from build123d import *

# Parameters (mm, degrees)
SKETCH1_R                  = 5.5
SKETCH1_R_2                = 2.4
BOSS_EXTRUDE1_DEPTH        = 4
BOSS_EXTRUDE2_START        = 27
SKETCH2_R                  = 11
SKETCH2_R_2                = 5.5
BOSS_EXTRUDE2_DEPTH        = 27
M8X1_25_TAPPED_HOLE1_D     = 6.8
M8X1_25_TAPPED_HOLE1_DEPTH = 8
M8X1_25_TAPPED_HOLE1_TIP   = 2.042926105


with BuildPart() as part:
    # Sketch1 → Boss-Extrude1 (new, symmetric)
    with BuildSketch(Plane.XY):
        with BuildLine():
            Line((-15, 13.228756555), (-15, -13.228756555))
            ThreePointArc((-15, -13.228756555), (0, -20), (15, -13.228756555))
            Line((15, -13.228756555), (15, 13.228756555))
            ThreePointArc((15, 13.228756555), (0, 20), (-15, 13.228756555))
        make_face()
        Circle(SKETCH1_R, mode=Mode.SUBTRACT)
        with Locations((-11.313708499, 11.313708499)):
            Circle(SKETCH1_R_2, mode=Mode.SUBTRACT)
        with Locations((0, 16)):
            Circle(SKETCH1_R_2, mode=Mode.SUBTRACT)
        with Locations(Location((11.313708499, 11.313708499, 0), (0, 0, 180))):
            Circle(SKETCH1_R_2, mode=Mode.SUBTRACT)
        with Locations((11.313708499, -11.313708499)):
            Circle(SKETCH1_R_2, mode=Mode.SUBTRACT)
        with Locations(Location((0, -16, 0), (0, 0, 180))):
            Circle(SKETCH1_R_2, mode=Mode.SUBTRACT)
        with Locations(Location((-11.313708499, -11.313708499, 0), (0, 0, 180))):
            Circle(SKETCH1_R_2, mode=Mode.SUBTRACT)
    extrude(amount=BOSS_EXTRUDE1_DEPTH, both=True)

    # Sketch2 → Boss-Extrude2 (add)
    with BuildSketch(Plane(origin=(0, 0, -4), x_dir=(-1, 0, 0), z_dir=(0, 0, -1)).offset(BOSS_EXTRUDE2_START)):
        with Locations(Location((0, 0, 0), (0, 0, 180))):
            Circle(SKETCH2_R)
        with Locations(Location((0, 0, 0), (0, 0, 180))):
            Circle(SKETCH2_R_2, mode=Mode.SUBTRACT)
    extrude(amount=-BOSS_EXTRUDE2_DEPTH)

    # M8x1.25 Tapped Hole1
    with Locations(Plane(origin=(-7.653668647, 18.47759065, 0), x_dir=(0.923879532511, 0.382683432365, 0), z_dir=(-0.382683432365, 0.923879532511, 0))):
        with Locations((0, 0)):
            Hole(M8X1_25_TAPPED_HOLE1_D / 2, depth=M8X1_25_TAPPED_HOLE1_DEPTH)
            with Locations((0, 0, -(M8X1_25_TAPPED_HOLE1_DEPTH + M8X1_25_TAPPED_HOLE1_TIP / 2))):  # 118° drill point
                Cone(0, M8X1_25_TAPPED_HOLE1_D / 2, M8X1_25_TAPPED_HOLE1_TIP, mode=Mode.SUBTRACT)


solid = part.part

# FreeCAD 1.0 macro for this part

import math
import FreeCAD as App
import Part
import Sketcher

doc = App.newDocument("Part")
body = doc.addObject("PartDesign::Body", "Body")

# Sketch on XY plane
sketch1 = body.newObject("Sketcher::SketchObject", "Sketch")
sketch1.AttachmentSupport = (doc.getObject("XY_Plane"), [""])
sketch1.MapMode = "FlatFace"
sketch1.addGeometry(Part.LineSegment(App.Vector(-15, 13.2, 0), App.Vector(-15, -13.2, 0)), False)
sketch1.addGeometry(Part.ArcOfCircle(Part.Circle(App.Vector(0, 0, 0), App.Vector(0, 0, 1), 20), math.radians(-139), math.radians(-41)), False)
sketch1.addGeometry(Part.LineSegment(App.Vector(15, -13.2, 0), App.Vector(15, 13.2, 0)), False)
sketch1.addGeometry(Part.ArcOfCircle(Part.Circle(App.Vector(0, 0, 0), App.Vector(0, 0, 1), 20), math.radians(41), math.radians(139)), False)
sketch1.addGeometry(Part.Circle(App.Vector(-11.3, -11.3, 0), App.Vector(0, 0, 1), 2.4), False)
sketch1.addGeometry(Part.Circle(App.Vector(0, -16, 0), App.Vector(0, 0, 1), 2.4), False)
sketch1.addGeometry(Part.Circle(App.Vector(11.3, -11.3, 0), App.Vector(0, 0, 1), 2.4), False)
sketch1.addGeometry(Part.Circle(App.Vector(0, 0, 0), App.Vector(0, 0, 1), 5.5), False)
sketch1.addGeometry(Part.Circle(App.Vector(-11.3, 11.3, 0), App.Vector(0, 0, 1), 2.4), False)
sketch1.addGeometry(Part.Circle(App.Vector(0, 16, 0), App.Vector(0, 0, 1), 2.4), False)
sketch1.addGeometry(Part.Circle(App.Vector(11.3, 11.3, 0), App.Vector(0, 0, 1), 2.4), False)
sketch1.addConstraint(Sketcher.Constraint("Coincident", 0, 2, 1, 1))
sketch1.addConstraint(Sketcher.Constraint("Coincident", 1, 2, 2, 1))
sketch1.addConstraint(Sketcher.Constraint("Coincident", 2, 2, 3, 1))
sketch1.addConstraint(Sketcher.Constraint("Coincident", 3, 2, 0, 1))
sketch1.addConstraint(Sketcher.Constraint("Vertical", 0))
sketch1.addConstraint(Sketcher.Constraint("Vertical", 2))
sketch1.addConstraint(Sketcher.Constraint("Coincident", 1, 3, -1, 1))
sketch1.addConstraint(Sketcher.Constraint("Coincident", 3, 3, -1, 1))
sketch1.addConstraint(Sketcher.Constraint("Coincident", 7, 3, -1, 1))
sketch1.addConstraint(Sketcher.Constraint("Equal", 1, 3))
sketch1.addConstraint(Sketcher.Constraint("Equal", 4, 5))
sketch1.addConstraint(Sketcher.Constraint("Equal", 5, 6))
sketch1.addConstraint(Sketcher.Constraint("Equal", 6, 8))
sketch1.addConstraint(Sketcher.Constraint("Equal", 8, 9))
sketch1.addConstraint(Sketcher.Constraint("Equal", 9, 10))
sketch1.addConstraint(Sketcher.Constraint("Symmetric", 6, 3, 8, 3, -1, 1))
sketch1.addConstraint(Sketcher.Constraint("Symmetric", 5, 3, 9, 3, -1, 1))
sketch1.addConstraint(Sketcher.Constraint("Symmetric", 4, 3, 10, 3, -1, 1))
sketch1.addConstraint(Sketcher.Constraint("Symmetric", 4, 3, 6, 3, -2))
sketch1.addConstraint(Sketcher.Constraint("PointOnObject", 5, 3, -2))
sketch1.addConstraint(Sketcher.Constraint("Horizontal", 0, 2, 1, 2))
sketch1.addConstraint(Sketcher.Constraint("Diameter", 7, 11.0))
sketch1.addConstraint(Sketcher.Constraint("Radius", 1, 20.0))
sketch1.addConstraint(Sketcher.Constraint("Diameter", 4, 4.8))
sketch1.addConstraint(Sketcher.Constraint("DistanceY", 5, 3, -1, 1, 16.0))
sketch1.addConstraint(Sketcher.Constraint("DistanceX", 0, 2, -1, 1, 15.0))
sketch1.addConstraint(Sketcher.Constraint("DistanceX", 4, 3, -1, 1, 11.313708))
sketch1.addConstraint(Sketcher.Constraint("DistanceY", 4, 3, -1, 1, 11.313708))
pad1 = body.newObject("PartDesign::Pad", "Pad")
pad1.Profile = sketch1
pad1.Length = 8
pad1.Midplane = True

# Sketch on XY plane
sketch2 = body.newObject("Sketcher::SketchObject", "Sketch001")
sketch2.AttachmentSupport = (doc.getObject("XY_Plane"), [""])
sketch2.MapMode = "FlatFace"
sketch2.AttachmentOffset = App.Placement(App.Vector(0, 0, -31), App.Rotation())
sketch2.addGeometry(Part.Circle(App.Vector(0, 0, 0), App.Vector(0, 0, 1), 11), False)
sketch2.addGeometry(Part.Circle(App.Vector(0, 0, 0), App.Vector(0, 0, 1), 6), False)
sketch2.addConstraint(Sketcher.Constraint("Coincident", 0, 3, -1, 1))
sketch2.addConstraint(Sketcher.Constraint("Coincident", 1, 3, -1, 1))
sketch2.addConstraint(Sketcher.Constraint("Diameter", 0, 22.0))
sketch2.addConstraint(Sketcher.Constraint("Diameter", 1, 11.0))
pad2 = body.newObject("PartDesign::Pad", "Pad001")
pad2.Profile = sketch2
pad2.Length = 27

# Sketch on an angled plane
sketch3 = body.newObject("Sketcher::SketchObject", "Sketch002")
sketch3.Placement = App.Placement(App.Vector(-7.653669, 18.477591, 0), App.Rotation(App.Vector(0.923879533, 0.382683432, 0), App.Vector(0, 0, -1.000000001), App.Vector(-0.382683432, 0.923879533, 0), "ZXY"))
sketch3.addGeometry(Part.Circle(App.Vector(0, 0, 0), App.Vector(0, 0, 1), 3.4), False)
sketch3.addConstraint(Sketcher.Constraint("Coincident", 0, 3, -1, 1))
sketch3.addConstraint(Sketcher.Constraint("Diameter", 0, 6.8))
doc.recompute()
hole = body.newObject("PartDesign::Hole", "Hole")
hole.Profile = sketch3
hole.ThreadType = "None"
hole.Diameter = 6.8
hole.DepthType = "Dimension"
hole.Depth = 8
hole.DrillPoint = "Angled"
hole.DrillPointAngle = 118

doc.recompute()
